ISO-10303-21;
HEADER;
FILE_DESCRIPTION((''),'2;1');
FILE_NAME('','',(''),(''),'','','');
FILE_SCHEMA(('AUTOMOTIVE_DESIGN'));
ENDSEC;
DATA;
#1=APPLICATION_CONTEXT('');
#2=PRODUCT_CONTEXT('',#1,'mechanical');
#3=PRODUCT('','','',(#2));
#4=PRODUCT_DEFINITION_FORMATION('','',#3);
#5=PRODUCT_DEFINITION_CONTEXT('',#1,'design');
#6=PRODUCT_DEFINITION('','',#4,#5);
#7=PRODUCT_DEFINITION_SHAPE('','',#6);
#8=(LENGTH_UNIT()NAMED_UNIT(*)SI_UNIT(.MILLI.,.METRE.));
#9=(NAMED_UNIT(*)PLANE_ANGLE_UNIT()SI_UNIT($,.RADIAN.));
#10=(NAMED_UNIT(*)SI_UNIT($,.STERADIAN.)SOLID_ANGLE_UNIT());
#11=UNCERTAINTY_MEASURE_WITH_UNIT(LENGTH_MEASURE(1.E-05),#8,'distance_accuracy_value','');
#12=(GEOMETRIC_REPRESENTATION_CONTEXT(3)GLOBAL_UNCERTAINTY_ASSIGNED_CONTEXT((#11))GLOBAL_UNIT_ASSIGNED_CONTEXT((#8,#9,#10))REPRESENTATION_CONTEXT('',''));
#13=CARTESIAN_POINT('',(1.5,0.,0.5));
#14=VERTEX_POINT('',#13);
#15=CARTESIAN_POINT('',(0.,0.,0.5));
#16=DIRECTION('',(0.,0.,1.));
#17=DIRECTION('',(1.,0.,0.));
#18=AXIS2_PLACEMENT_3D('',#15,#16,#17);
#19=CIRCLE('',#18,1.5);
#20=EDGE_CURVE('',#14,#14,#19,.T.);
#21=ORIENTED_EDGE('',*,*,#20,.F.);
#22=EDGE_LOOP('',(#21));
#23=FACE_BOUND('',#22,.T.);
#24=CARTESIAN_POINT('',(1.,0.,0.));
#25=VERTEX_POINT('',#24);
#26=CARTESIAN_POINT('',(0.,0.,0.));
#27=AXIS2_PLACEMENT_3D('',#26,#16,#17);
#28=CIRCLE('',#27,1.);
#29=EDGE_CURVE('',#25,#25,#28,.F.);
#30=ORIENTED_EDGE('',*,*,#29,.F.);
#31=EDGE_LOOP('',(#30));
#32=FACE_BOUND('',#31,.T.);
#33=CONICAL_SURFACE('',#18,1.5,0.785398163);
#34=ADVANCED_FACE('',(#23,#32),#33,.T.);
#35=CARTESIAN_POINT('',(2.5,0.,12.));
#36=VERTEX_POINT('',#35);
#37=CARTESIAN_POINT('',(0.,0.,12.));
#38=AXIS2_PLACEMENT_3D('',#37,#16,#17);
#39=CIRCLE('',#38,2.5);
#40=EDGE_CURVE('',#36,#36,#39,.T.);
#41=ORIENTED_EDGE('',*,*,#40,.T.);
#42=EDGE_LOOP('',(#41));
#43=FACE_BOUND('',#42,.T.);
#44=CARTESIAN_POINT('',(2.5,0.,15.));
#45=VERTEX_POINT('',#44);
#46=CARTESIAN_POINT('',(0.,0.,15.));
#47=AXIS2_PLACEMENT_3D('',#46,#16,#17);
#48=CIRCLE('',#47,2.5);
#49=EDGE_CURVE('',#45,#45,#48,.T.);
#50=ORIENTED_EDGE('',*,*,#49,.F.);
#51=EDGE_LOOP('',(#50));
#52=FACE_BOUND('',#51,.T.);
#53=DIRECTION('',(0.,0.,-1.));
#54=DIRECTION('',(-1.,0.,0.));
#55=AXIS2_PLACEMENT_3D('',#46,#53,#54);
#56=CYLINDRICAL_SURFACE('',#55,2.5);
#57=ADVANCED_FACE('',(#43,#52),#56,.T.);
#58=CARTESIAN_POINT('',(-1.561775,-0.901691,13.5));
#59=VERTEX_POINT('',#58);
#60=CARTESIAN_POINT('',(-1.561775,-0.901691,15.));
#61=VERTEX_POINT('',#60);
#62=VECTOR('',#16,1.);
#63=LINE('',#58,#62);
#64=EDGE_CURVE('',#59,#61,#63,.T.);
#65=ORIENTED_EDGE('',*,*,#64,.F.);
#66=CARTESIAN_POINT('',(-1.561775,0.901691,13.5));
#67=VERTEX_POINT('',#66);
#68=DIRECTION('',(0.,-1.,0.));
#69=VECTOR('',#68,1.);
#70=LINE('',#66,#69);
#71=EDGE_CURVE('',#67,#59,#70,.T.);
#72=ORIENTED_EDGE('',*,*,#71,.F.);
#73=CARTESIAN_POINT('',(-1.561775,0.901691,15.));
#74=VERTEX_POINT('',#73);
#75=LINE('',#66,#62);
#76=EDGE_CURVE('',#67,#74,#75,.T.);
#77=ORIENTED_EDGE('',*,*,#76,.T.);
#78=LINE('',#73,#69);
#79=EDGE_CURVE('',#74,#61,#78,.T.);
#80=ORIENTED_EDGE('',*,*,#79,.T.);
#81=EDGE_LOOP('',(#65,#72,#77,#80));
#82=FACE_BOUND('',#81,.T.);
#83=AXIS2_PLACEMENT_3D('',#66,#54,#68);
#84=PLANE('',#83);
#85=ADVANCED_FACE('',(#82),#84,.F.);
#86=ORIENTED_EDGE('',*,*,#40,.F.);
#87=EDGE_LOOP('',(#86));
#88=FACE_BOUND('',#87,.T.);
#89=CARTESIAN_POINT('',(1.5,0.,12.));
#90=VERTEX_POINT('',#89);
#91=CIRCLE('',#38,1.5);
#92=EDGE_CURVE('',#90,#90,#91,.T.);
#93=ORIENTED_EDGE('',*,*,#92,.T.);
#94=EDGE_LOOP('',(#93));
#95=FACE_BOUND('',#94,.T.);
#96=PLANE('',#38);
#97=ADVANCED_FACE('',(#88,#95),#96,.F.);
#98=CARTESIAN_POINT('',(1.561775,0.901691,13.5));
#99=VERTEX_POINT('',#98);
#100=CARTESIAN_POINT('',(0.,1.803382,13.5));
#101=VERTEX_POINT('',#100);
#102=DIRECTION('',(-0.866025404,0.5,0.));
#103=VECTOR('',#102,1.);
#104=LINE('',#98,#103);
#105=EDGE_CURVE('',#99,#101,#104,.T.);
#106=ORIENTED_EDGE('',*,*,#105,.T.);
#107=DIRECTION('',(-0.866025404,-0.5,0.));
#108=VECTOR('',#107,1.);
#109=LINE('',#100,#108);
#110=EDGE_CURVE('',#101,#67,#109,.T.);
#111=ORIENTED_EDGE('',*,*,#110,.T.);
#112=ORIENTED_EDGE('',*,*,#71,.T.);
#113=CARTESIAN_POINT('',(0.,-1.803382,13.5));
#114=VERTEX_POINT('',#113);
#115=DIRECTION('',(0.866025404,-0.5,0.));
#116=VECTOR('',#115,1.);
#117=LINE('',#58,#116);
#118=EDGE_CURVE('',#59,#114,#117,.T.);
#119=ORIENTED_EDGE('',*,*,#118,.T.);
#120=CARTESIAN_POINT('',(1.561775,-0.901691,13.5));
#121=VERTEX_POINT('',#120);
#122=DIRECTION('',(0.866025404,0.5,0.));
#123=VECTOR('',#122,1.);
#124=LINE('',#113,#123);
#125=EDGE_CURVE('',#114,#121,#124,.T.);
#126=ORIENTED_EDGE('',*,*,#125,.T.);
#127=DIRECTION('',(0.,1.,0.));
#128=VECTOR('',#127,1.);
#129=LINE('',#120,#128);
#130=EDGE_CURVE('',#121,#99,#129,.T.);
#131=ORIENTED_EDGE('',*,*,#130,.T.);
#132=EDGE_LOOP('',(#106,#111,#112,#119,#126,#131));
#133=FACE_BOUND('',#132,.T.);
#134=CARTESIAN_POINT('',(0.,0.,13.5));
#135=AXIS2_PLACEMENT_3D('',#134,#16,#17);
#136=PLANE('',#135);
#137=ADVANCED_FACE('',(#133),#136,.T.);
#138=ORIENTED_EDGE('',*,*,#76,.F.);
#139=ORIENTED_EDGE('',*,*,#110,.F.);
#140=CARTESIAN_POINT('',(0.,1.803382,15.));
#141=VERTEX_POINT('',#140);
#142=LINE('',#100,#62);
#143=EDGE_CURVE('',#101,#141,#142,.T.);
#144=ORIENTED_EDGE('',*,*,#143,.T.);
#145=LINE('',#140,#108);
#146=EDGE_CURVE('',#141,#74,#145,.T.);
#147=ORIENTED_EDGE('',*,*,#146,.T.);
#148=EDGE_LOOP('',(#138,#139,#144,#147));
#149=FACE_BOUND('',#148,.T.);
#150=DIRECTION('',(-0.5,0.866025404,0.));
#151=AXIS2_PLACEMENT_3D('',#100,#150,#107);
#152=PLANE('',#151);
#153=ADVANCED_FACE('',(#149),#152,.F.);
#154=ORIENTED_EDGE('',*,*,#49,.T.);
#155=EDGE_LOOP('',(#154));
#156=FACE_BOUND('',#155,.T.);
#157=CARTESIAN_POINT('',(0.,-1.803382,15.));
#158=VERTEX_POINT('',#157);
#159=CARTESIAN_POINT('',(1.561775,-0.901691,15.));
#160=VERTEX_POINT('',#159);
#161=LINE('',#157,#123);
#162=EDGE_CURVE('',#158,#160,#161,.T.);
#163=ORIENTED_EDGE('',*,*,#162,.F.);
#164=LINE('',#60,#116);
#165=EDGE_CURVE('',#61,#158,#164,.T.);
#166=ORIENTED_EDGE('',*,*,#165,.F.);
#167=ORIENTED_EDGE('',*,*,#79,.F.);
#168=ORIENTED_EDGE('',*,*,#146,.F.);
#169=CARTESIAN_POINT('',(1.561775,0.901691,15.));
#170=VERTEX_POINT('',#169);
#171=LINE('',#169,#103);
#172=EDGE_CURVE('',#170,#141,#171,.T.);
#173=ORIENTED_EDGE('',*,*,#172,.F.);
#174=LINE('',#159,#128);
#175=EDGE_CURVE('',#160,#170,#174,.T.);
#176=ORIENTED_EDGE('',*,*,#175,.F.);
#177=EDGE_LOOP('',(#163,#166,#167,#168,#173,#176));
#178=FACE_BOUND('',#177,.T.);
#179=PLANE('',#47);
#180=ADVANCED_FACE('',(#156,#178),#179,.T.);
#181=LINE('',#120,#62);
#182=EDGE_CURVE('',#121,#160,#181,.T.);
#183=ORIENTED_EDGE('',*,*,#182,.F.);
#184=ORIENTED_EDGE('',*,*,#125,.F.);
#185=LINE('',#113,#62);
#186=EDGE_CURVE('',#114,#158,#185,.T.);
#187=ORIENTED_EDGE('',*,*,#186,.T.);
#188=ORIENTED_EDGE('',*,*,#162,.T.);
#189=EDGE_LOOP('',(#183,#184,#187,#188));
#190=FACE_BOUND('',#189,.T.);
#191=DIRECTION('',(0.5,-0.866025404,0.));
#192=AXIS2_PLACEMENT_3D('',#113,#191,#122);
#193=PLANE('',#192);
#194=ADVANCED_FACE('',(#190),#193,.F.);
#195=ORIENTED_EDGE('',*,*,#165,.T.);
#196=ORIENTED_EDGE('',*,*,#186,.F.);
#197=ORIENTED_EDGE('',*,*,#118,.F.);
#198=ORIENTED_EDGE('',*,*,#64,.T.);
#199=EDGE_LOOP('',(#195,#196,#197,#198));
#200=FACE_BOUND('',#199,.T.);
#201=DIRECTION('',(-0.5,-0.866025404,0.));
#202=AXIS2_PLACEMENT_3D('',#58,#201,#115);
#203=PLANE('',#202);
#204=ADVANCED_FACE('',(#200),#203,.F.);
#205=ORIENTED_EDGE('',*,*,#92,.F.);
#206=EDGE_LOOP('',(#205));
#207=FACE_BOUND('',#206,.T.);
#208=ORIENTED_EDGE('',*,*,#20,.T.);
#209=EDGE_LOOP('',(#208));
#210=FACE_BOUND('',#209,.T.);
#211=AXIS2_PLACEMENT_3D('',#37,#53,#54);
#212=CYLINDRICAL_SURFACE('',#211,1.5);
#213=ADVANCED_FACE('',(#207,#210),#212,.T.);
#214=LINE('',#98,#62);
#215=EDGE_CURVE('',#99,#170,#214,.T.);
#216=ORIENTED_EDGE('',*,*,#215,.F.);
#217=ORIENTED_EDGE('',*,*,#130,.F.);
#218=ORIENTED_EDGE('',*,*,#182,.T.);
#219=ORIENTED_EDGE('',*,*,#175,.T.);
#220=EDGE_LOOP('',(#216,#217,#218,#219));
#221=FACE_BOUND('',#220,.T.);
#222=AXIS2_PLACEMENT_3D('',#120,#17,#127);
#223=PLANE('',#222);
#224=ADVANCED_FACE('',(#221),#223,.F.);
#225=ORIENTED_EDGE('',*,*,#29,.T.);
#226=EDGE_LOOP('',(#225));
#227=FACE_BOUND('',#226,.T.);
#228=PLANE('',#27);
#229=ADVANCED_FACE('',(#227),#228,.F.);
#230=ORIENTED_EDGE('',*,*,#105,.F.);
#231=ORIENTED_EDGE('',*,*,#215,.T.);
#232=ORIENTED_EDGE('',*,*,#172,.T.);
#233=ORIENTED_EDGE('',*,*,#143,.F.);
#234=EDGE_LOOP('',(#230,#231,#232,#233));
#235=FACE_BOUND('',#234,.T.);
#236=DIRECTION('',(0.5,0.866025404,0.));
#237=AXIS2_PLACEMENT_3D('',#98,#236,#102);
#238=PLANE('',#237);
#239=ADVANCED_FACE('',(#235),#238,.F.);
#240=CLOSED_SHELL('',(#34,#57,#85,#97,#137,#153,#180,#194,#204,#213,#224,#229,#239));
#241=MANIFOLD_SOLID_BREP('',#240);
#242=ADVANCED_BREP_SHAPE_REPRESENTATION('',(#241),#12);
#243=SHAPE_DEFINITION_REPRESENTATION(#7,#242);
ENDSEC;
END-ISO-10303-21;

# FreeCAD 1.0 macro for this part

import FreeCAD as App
import Part
import Sketcher
from FreeCAD import Vector
Q = App.Units.Quantity


def edges_at(feature, points):
    """Names of the edges that pass closest to the given points."""
    edges = feature.Shape.Edges
    near = lambda p: min(range(len(edges)), key=lambda i: edges[i].distToShape(Part.Vertex(*p))[0])
    return sorted({f"Edge{near(p) + 1}" for p in points})

doc = App.newDocument("Part")
body = doc.addObject("PartDesign::Body", "Body")

sketch1 = body.newObject("Sketcher::SketchObject", "Sketch")
sketch1.AttachmentSupport = (doc.getObject("XY_Plane"), [""])
sketch1.MapMode = "FlatFace"
sketch1.addGeometry(Part.Circle(Vector(0, 0, 0), Vector(0, 0, 1), 1.5), False)
sketch1.addConstraint([
    Sketcher.Constraint("Coincident", 0, 3, -1, 1),
    Sketcher.Constraint("Diameter", 0, 3.0),
])
pad1 = body.newObject("PartDesign::Pad", "Pad")
pad1.Profile = sketch1
pad1.Length = 12

sketch2 = body.newObject("Sketcher::SketchObject", "Sketch001")
sketch2.AttachmentSupport = (doc.getObject("XY_Plane"), [""])
sketch2.MapMode = "FlatFace"
sketch2.AttachmentOffset = App.Placement(Vector(0, 0, 12), App.Rotation())
sketch2.addGeometry(Part.Circle(Vector(0, 0, 0), Vector(0, 0, 1), 2.5), False)
sketch2.addConstraint([
    Sketcher.Constraint("Coincident", 0, 3, -1, 1),
    Sketcher.Constraint("Diameter", 0, 5.0),
])
pad2 = body.newObject("PartDesign::Pad", "Pad001")
pad2.Profile = sketch2
pad2.Length = 3

sketch3 = body.newObject("Sketcher::SketchObject", "Sketch002")
sketch3.AttachmentSupport = (doc.getObject("XY_Plane"), [""])
sketch3.MapMode = "FlatFace"
sketch3.AttachmentOffset = App.Placement(Vector(0, 0, 15), App.Rotation())
sketch3.addGeometry([
    Part.LineSegment(Vector(0, 1.8, 0), Vector(-1.6, 0.9, 0)),
    Part.LineSegment(Vector(-1.6, 0.9, 0), Vector(-1.6, -0.9, 0)),
    Part.LineSegment(Vector(-1.6, -0.9, 0), Vector(0, -1.8, 0)),
    Part.LineSegment(Vector(0, -1.8, 0), Vector(1.6, -0.9, 0)),
    Part.LineSegment(Vector(1.6, -0.9, 0), Vector(1.6, 0.9, 0)),
    Part.LineSegment(Vector(1.6, 0.9, 0), Vector(0, 1.8, 0)),
], False)
sketch3.addConstraint([
    Sketcher.Constraint("Coincident", 0, 2, 1, 1),
    Sketcher.Constraint("Coincident", 1, 2, 2, 1),
    Sketcher.Constraint("Coincident", 2, 2, 3, 1),
    Sketcher.Constraint("Coincident", 3, 2, 4, 1),
    Sketcher.Constraint("Coincident", 4, 2, 5, 1),
    Sketcher.Constraint("Coincident", 5, 2, 0, 1),
    Sketcher.Constraint("Vertical", 1),
    Sketcher.Constraint("Vertical", 4),
    Sketcher.Constraint("Symmetric", 0, 2, 3, 2, -1, 1),
    Sketcher.Constraint("Symmetric", 2, 2, 5, 2, -1, 1),
    Sketcher.Constraint("PointOnObject", 2, 2, -2),
    Sketcher.Constraint("Parallel", 2, 5),
    Sketcher.Constraint("Horizontal", 1, 2, 3, 2),
    Sketcher.Constraint("Angle", 0, Q("-150 deg")),
    Sketcher.Constraint("DistanceY", 1, 2, 1, 1, 1.803382),
    Sketcher.Constraint("DistanceY", 2, 2, 1, 2, 0.901691),
])
pocket1 = body.newObject("PartDesign::Pocket", "Pocket")
pocket1.Profile = sketch3
pocket1.Length = 1.5
doc.recompute()

chamfer = body.newObject("PartDesign::Chamfer", "Chamfer")
chamfer.Base = (pocket1, edges_at(pocket1, [(-1.5, 0, 0)]))
chamfer.Size = 0.5

doc.recompute()
